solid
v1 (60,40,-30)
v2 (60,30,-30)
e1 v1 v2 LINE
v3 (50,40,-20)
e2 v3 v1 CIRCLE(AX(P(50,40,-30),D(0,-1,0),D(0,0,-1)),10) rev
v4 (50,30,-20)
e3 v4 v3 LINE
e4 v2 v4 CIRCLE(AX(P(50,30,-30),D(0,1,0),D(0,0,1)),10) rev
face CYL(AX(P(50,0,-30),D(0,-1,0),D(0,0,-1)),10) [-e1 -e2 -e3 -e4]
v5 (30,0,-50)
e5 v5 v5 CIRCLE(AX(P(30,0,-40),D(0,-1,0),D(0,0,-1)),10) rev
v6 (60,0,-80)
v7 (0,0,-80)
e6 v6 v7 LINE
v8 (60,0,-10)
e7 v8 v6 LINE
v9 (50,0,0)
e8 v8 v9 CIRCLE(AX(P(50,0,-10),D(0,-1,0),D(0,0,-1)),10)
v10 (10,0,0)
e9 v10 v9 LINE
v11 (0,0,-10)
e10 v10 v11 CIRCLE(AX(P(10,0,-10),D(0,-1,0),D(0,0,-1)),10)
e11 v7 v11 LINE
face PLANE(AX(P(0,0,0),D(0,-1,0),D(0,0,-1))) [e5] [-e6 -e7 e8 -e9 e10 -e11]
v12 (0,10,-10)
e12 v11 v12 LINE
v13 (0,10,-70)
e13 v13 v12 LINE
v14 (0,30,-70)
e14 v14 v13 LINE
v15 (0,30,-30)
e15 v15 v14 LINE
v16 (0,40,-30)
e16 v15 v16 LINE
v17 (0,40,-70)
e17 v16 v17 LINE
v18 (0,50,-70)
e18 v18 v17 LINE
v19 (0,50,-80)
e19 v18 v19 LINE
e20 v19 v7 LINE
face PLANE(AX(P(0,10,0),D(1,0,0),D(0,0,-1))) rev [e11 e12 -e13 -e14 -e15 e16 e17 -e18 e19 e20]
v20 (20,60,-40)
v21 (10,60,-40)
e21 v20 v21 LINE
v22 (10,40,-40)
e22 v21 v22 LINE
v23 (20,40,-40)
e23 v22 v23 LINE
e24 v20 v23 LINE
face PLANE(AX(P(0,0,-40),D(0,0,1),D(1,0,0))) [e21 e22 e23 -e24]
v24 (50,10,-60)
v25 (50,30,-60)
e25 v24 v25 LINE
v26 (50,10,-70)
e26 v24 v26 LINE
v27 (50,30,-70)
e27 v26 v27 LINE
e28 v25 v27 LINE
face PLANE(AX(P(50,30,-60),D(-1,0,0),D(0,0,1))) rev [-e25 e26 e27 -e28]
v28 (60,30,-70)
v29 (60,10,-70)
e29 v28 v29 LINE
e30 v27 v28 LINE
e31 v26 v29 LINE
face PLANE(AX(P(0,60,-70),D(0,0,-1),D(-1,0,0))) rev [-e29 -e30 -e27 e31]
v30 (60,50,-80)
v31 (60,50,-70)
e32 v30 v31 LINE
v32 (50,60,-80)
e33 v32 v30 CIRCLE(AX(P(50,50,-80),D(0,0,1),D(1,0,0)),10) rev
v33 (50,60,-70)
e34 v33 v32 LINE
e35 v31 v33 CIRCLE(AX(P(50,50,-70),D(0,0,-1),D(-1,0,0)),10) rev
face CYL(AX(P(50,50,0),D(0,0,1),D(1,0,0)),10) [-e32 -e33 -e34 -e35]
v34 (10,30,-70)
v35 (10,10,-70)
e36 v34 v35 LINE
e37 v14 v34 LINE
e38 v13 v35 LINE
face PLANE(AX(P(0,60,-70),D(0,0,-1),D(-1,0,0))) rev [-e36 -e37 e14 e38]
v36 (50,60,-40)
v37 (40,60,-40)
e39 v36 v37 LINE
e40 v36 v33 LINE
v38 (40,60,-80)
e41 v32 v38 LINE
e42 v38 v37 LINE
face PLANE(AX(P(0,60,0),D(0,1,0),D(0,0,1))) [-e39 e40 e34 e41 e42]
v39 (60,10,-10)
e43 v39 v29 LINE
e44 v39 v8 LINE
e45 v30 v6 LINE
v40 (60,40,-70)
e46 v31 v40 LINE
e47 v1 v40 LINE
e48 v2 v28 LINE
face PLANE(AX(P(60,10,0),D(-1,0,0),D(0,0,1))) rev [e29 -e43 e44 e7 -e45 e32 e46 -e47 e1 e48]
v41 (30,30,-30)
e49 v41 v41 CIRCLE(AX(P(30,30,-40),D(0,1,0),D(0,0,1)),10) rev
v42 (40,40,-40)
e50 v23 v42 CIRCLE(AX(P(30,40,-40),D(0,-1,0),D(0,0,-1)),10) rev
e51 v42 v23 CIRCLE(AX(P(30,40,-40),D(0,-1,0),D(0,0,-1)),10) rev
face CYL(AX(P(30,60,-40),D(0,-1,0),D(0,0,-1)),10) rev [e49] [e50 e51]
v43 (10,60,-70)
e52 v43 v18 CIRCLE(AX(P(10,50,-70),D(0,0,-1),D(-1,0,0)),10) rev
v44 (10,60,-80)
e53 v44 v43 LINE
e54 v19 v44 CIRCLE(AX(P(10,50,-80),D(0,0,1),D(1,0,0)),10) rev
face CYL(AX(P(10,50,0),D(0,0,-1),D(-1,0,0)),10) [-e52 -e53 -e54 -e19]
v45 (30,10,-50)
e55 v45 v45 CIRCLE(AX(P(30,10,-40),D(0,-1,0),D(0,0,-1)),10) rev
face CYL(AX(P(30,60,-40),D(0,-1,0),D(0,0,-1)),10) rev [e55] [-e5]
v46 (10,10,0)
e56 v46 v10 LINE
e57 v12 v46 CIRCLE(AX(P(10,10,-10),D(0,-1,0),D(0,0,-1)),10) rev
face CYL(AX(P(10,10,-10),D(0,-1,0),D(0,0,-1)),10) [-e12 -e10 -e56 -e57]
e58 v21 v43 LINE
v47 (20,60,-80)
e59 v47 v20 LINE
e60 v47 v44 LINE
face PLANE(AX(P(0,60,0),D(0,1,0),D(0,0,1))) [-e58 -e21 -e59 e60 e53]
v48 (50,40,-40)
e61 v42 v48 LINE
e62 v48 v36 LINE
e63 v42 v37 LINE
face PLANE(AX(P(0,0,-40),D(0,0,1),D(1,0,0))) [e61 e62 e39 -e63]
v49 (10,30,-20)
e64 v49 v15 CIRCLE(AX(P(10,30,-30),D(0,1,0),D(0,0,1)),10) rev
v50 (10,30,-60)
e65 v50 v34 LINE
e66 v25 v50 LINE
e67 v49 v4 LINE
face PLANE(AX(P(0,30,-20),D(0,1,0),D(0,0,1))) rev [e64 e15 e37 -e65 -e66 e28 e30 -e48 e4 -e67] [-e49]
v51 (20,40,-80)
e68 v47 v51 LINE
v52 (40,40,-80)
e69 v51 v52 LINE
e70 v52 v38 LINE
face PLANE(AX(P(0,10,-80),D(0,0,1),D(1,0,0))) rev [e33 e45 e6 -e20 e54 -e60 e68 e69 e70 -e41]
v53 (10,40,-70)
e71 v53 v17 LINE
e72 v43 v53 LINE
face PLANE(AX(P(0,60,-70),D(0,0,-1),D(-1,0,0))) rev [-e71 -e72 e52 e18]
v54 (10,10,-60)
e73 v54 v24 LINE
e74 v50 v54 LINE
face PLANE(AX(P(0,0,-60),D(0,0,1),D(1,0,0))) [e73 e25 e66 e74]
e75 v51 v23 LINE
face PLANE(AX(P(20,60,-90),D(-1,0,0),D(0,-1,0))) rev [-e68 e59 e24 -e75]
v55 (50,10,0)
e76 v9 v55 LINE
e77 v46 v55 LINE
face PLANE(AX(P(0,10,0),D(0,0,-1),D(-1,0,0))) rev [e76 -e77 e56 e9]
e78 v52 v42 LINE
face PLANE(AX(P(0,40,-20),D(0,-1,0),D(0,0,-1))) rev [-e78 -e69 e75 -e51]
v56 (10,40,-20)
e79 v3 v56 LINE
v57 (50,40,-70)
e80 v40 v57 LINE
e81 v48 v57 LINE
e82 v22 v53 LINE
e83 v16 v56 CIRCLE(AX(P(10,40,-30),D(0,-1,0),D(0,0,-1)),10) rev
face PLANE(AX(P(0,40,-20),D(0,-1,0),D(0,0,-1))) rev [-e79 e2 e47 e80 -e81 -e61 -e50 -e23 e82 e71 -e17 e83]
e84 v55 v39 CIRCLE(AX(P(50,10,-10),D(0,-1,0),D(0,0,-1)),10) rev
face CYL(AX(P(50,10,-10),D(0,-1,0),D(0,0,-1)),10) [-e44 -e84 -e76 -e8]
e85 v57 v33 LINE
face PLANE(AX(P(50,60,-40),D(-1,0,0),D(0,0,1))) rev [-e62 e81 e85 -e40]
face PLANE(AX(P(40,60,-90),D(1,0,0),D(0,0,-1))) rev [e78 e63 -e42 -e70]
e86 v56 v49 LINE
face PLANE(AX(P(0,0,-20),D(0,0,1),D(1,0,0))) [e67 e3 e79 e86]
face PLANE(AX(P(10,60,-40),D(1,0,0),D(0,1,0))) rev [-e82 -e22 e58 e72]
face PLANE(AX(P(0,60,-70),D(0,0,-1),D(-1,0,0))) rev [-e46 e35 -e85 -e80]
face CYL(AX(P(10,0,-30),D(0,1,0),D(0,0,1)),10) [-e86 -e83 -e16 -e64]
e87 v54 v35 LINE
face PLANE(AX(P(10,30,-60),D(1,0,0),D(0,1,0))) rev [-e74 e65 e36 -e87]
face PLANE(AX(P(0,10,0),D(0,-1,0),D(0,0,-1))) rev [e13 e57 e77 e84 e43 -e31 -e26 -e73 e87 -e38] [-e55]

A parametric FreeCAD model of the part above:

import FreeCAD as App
import Part
import Sketcher


def edges_at(feature, points):
    """Names of the edges that pass closest to the given points."""
    edges = feature.Shape.Edges
    near = lambda p: min(range(len(edges)), key=lambda i: edges[i].distToShape(Part.Vertex(*p))[0])
    return sorted({f"Edge{near(p) + 1}" for p in points})

doc = App.newDocument("Part")
body = doc.addObject("PartDesign::Body", "Body")

sketch1 = body.newObject("Sketcher::SketchObject", "Sketch")
sketch1.AttachmentSupport = (doc.getObject("XZ_Plane"), [""])
sketch1.MapMode = "FlatFace"
sketch1.addGeometry([
    Part.LineSegment(App.Vector(0, -80, 0), App.Vector(0, 0, 0)),
    Part.LineSegment(App.Vector(0, 0, 0), App.Vector(60, 0, 0)),
    Part.LineSegment(App.Vector(60, 0, 0), App.Vector(60, -80, 0)),
    Part.LineSegment(App.Vector(60, -80, 0), App.Vector(0, -80, 0)),
], False)
sketch1.addConstraint([
    Sketcher.Constraint("Coincident", 0, 2, 1, 1),
    Sketcher.Constraint("Coincident", 1, 2, 2, 1),
    Sketcher.Constraint("Coincident", 2, 2, 3, 1),
    Sketcher.Constraint("Coincident", 3, 2, 0, 1),
    Sketcher.Constraint("Vertical", 0),
    Sketcher.Constraint("Horizontal", 1),
    Sketcher.Constraint("Vertical", 2),
    Sketcher.Constraint("Horizontal", 3),
    Sketcher.Constraint("Coincident", 0, 2, -1, 1),
    Sketcher.Constraint("DistanceX", 1, 1, 1, 2, 60.0),
    Sketcher.Constraint("DistanceY", 0, 1, 0, 2, 80.0),
])
pad1 = body.newObject("PartDesign::Pad", "Pad")
pad1.Profile = sketch1
pad1.Length = 10
pad1.Reversed = True

sketch2 = body.newObject("Sketcher::SketchObject", "Sketch001")
sketch2.AttachmentSupport = (doc.getObject("XZ_Plane"), [""])
sketch2.MapMode = "FlatFace"
sketch2.AttachmentOffset = App.Placement(App.Vector(0, 0, -10), App.Rotation())
sketch2.addGeometry([
    Part.LineSegment(App.Vector(0, -80, 0), App.Vector(0, -70, 0)),
    Part.LineSegment(App.Vector(0, -70, 0), App.Vector(60, -70, 0)),
    Part.LineSegment(App.Vector(60, -70, 0), App.Vector(60, -80, 0)),
    Part.LineSegment(App.Vector(60, -80, 0), App.Vector(0, -80, 0)),
], False)
sketch2.addConstraint([
    Sketcher.Constraint("Coincident", 0, 2, 1, 1),
    Sketcher.Constraint("Coincident", 1, 2, 2, 1),
    Sketcher.Constraint("Coincident", 2, 2, 3, 1),
    Sketcher.Constraint("Coincident", 3, 2, 0, 1),
    Sketcher.Constraint("Vertical", 0),
    Sketcher.Constraint("Horizontal", 1),
    Sketcher.Constraint("Vertical", 2),
    Sketcher.Constraint("Horizontal", 3),
    Sketcher.Constraint("PointOnObject", 0, 2, -2),
    Sketcher.Constraint("DistanceX", 1, 1, 1, 2, 60.0),
    Sketcher.Constraint("DistanceY", 0, 1, 0, 2, 10.0),
    Sketcher.Constraint("DistanceY", 0, 2, -1, 1, 70.0),
])
pad2 = body.newObject("PartDesign::Pad", "Pad001")
pad2.Profile = sketch2
pad2.Length = 50
pad2.Reversed = True

sketch3 = body.newObject("Sketcher::SketchObject", "Sketch002")
sketch3.AttachmentSupport = (doc.getObject("XY_Plane"), [""])
sketch3.MapMode = "FlatFace"
sketch3.AttachmentOffset = App.Placement(App.Vector(0, 0, -70), App.Rotation())
sketch3.addGeometry([
    Part.LineSegment(App.Vector(0, 40, 0), App.Vector(0, 30, 0)),
    Part.LineSegment(App.Vector(0, 30, 0), App.Vector(60, 30, 0)),
    Part.LineSegment(App.Vector(60, 30, 0), App.Vector(60, 40, 0)),
    Part.LineSegment(App.Vector(60, 40, 0), App.Vector(0, 40, 0)),
], False)
sketch3.addConstraint([
    Sketcher.Constraint("Coincident", 0, 2, 1, 1),
    Sketcher.Constraint("Coincident", 1, 2, 2, 1),
    Sketcher.Constraint("Coincident", 2, 2, 3, 1),
    Sketcher.Constraint("Coincident", 3, 2, 0, 1),
    Sketcher.Constraint("Vertical", 0),
    Sketcher.Constraint("Horizontal", 1),
    Sketcher.Constraint("Vertical", 2),
    Sketcher.Constraint("Horizontal", 3),
    Sketcher.Constraint("PointOnObject", 0, 2, -2),
    Sketcher.Constraint("DistanceX", 1, 1, 1, 2, 60.0),
    Sketcher.Constraint("DistanceY", 0, 2, 0, 1, 10.0),
    Sketcher.Constraint("DistanceY", -1, 1, 0, 2, 30.0),
])
pad3 = body.newObject("PartDesign::Pad", "Pad002")
pad3.Profile = sketch3
pad3.Length = 50

sketch4 = body.newObject("Sketcher::SketchObject", "Sketch003")
sketch4.AttachmentSupport = (doc.getObject("XY_Plane"), [""])
sketch4.MapMode = "FlatFace"
sketch4.AttachmentOffset = App.Placement(App.Vector(0, 0, -70), App.Rotation())
sketch4.addGeometry([
    Part.LineSegment(App.Vector(10, 30, 0), App.Vector(10, 10, 0)),
    Part.LineSegment(App.Vector(10, 10, 0), App.Vector(50, 10, 0)),
    Part.LineSegment(App.Vector(50, 10, 0), App.Vector(50, 30, 0)),
    Part.LineSegment(App.Vector(50, 30, 0), App.Vector(10, 30, 0)),
], False)
sketch4.addConstraint([
    Sketcher.Constraint("Coincident", 0, 2, 1, 1),
    Sketcher.Constraint("Coincident", 1, 2, 2, 1),
    Sketcher.Constraint("Coincident", 2, 2, 3, 1),
    Sketcher.Constraint("Coincident", 3, 2, 0, 1),
    Sketcher.Constraint("Vertical", 0),
    Sketcher.Constraint("Horizontal", 1),
    Sketcher.Constraint("Vertical", 2),
    Sketcher.Constraint("Horizontal", 3),
    Sketcher.Constraint("DistanceX", 1, 1, 1, 2, 40.0),
    Sketcher.Constraint("DistanceY", 0, 2, 0, 1, 20.0),
    Sketcher.Constraint("DistanceX", -1, 1, 0, 2, 10.0),
    Sketcher.Constraint("DistanceY", -1, 1, 0, 2, 10.0),
])
pad4 = body.newObject("PartDesign::Pad", "Pad003")
pad4.Profile = sketch4
pad4.Length = 10

sketch5 = body.newObject("Sketcher::SketchObject", "Sketch004")
sketch5.AttachmentSupport = (doc.getObject("XY_Plane"), [""])
sketch5.MapMode = "FlatFace"
sketch5.AttachmentOffset = App.Placement(App.Vector(0, 0, -70), App.Rotation())
sketch5.addGeometry([
    Part.LineSegment(App.Vector(10, 60, 0), App.Vector(10, 40, 0)),
    Part.LineSegment(App.Vector(10, 40, 0), App.Vector(50, 40, 0)),
    Part.LineSegment(App.Vector(50, 40, 0), App.Vector(50, 60, 0)),
    Part.LineSegment(App.Vector(50, 60, 0), App.Vector(10, 60, 0)),
], False)
sketch5.addConstraint([
    Sketcher.Constraint("Coincident", 0, 2, 1, 1),
    Sketcher.Constraint("Coincident", 1, 2, 2, 1),
    Sketcher.Constraint("Coincident", 2, 2, 3, 1),
    Sketcher.Constraint("Coincident", 3, 2, 0, 1),
    Sketcher.Constraint("Vertical", 0),
    Sketcher.Constraint("Horizontal", 1),
    Sketcher.Constraint("Vertical", 2),
    Sketcher.Constraint("Horizontal", 3),
    Sketcher.Constraint("DistanceX", 1, 1, 1, 2, 40.0),
    Sketcher.Constraint("DistanceY", 0, 2, 0, 1, 20.0),
    Sketcher.Constraint("DistanceX", -1, 1, 0, 2, 10.0),
    Sketcher.Constraint("DistanceY", -1, 1, 0, 2, 40.0),
])
pad5 = body.newObject("PartDesign::Pad", "Pad004")
pad5.Profile = sketch5
pad5.Length = 30

sketch6 = body.newObject("Sketcher::SketchObject", "Sketch005")
sketch6.AttachmentSupport = (doc.getObject("XY_Plane"), [""])
sketch6.MapMode = "FlatFace"
sketch6.AttachmentOffset = App.Placement(App.Vector(0, 0, -40), App.Rotation())
sketch6.addGeometry([
    Part.LineSegment(App.Vector(20, 60, 0), App.Vector(20, 40, 0)),
    Part.LineSegment(App.Vector(20, 40, 0), App.Vector(40, 40, 0)),
    Part.LineSegment(App.Vector(40, 40, 0), App.Vector(40, 60, 0)),
    Part.LineSegment(App.Vector(40, 60, 0), App.Vector(20, 60, 0)),
], False)
sketch6.addConstraint([
    Sketcher.Constraint("Coincident", 0, 2, 1, 1),
    Sketcher.Constraint("Coincident", 1, 2, 2, 1),
    Sketcher.Constraint("Coincident", 2, 2, 3, 1),
    Sketcher.Constraint("Coincident", 3, 2, 0, 1),
    Sketcher.Constraint("Vertical", 0),
    Sketcher.Constraint("Horizontal", 1),
    Sketcher.Constraint("Vertical", 2),
    Sketcher.Constraint("Horizontal", 3),
    Sketcher.Constraint("Equal", 3, 0),
    Sketcher.Constraint("DistanceX", 1, 1, 1, 2, 20.0),
    Sketcher.Constraint("DistanceX", -1, 1, 0, 2, 20.0),
    Sketcher.Constraint("DistanceY", -1, 1, 0, 2, 40.0),
])
pocket1 = body.newObject("PartDesign::Pocket", "Pocket")
pocket1.Profile = sketch6
pocket1.Length = 50
doc.recompute()

fillet = body.newObject("PartDesign::Fillet", "Fillet")
fillet.Base = (pocket1, edges_at(pocket1, [
    (0, 60, -75),
    (60, 60, -75),
    (0, 35, -20),
    (60, 35, -20),
    (60, 5, 0),
    (0, 5, 0),
]))
fillet.Radius = 10

sketch7 = body.newObject("Sketcher::SketchObject", "Sketch006")
sketch7.AttachmentSupport = (doc.getObject("XZ_Plane"), [""])
sketch7.MapMode = "FlatFace"
sketch7.AttachmentOffset = App.Placement(App.Vector(0, 0, -10), App.Rotation())
sketch7.addGeometry(Part.Circle(App.Vector(30, -40, 0), App.Vector(0, 0, 1), 10), False)
sketch7.addConstraint([
    Sketcher.Constraint("Diameter", 0, 20.0),
    Sketcher.Constraint("DistanceX", -1, 1, 0, 3, 30.0),
    Sketcher.Constraint("DistanceY", 0, 3, -1, 1, 40.0),
])
pocket2 = body.newObject("PartDesign::Pocket", "Pocket001")
pocket2.Profile = sketch7
pocket2.Type = "ThroughAll"
pocket2.Midplane = True

doc.recompute()
